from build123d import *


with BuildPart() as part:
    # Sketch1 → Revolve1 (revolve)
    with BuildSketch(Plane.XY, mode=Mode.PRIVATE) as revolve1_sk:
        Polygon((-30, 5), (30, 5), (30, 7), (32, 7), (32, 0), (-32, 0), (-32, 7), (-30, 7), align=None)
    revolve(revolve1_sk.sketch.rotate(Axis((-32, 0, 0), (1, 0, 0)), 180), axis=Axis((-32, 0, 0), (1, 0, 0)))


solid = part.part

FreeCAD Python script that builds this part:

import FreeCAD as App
import Part
import Sketcher

V = App.Vector


def add_polygon(sketch, points):
    """Adds a closed chain of lines whose ends are joined by coincident constraints."""
    first, n = sketch.GeometryCount, len(points)
    for a, b in zip(points, points[1:] + points[:1]):
        sketch.addGeometry(Part.LineSegment(App.Vector(*a, 0), App.Vector(*b, 0)), False)
    for i in range(n):
        sketch.addConstraint(Sketcher.Constraint("Coincident", first + i, 2, first + (i + 1) % n, 1))

doc = App.newDocument("Part")
body = doc.addObject("PartDesign::Body", "Body")

# Sketch on XY plane
sketch1 = body.newObject("Sketcher::SketchObject", "Sketch")
sketch1.AttachmentSupport = (doc.getObject("XY_Plane"), [""])
sketch1.MapMode = "FlatFace"
add_polygon(sketch1, [(30, 5), (-30, 5), (-30, 7), (-32, 7), (-32, 0), (32, 0), (32, 7), (30, 7)])  # lines 0-7
sketch1.addConstraint(Sketcher.Constraint("Horizontal", 0))
sketch1.addConstraint(Sketcher.Constraint("Vertical", 1))
sketch1.addConstraint(Sketcher.Constraint("Horizontal", 2))
sketch1.addConstraint(Sketcher.Constraint("Vertical", 3))
sketch1.addConstraint(Sketcher.Constraint("Horizontal", 4))
sketch1.addConstraint(Sketcher.Constraint("Vertical", 5))
sketch1.addConstraint(Sketcher.Constraint("Horizontal", 6))
sketch1.addConstraint(Sketcher.Constraint("Vertical", 7))
sketch1.addConstraint(Sketcher.Constraint("Symmetric", 3, 2, 4, 2, -1, 1))
sketch1.addConstraint(Sketcher.Constraint("Symmetric", 1, 2, 6, 2, -2))
sketch1.addConstraint(Sketcher.Constraint("Equal", 6, 1))
sketch1.addConstraint(Sketcher.Constraint("DistanceX", 0, 2, 0, 1, 60.0))
sketch1.addConstraint(Sketcher.Constraint("DistanceX", 2, 2, 2, 1, 2.0))
sketch1.addConstraint(Sketcher.Constraint("DistanceY", 3, 2, 3, 1, 7.0))
revolution = body.newObject("PartDesign::Revolution", "Revolution")
revolution.Profile = sketch1
revolution.ReferenceAxis = (sketch1, ["H_Axis"])
revolution.Angle = 360

doc.recompute()
